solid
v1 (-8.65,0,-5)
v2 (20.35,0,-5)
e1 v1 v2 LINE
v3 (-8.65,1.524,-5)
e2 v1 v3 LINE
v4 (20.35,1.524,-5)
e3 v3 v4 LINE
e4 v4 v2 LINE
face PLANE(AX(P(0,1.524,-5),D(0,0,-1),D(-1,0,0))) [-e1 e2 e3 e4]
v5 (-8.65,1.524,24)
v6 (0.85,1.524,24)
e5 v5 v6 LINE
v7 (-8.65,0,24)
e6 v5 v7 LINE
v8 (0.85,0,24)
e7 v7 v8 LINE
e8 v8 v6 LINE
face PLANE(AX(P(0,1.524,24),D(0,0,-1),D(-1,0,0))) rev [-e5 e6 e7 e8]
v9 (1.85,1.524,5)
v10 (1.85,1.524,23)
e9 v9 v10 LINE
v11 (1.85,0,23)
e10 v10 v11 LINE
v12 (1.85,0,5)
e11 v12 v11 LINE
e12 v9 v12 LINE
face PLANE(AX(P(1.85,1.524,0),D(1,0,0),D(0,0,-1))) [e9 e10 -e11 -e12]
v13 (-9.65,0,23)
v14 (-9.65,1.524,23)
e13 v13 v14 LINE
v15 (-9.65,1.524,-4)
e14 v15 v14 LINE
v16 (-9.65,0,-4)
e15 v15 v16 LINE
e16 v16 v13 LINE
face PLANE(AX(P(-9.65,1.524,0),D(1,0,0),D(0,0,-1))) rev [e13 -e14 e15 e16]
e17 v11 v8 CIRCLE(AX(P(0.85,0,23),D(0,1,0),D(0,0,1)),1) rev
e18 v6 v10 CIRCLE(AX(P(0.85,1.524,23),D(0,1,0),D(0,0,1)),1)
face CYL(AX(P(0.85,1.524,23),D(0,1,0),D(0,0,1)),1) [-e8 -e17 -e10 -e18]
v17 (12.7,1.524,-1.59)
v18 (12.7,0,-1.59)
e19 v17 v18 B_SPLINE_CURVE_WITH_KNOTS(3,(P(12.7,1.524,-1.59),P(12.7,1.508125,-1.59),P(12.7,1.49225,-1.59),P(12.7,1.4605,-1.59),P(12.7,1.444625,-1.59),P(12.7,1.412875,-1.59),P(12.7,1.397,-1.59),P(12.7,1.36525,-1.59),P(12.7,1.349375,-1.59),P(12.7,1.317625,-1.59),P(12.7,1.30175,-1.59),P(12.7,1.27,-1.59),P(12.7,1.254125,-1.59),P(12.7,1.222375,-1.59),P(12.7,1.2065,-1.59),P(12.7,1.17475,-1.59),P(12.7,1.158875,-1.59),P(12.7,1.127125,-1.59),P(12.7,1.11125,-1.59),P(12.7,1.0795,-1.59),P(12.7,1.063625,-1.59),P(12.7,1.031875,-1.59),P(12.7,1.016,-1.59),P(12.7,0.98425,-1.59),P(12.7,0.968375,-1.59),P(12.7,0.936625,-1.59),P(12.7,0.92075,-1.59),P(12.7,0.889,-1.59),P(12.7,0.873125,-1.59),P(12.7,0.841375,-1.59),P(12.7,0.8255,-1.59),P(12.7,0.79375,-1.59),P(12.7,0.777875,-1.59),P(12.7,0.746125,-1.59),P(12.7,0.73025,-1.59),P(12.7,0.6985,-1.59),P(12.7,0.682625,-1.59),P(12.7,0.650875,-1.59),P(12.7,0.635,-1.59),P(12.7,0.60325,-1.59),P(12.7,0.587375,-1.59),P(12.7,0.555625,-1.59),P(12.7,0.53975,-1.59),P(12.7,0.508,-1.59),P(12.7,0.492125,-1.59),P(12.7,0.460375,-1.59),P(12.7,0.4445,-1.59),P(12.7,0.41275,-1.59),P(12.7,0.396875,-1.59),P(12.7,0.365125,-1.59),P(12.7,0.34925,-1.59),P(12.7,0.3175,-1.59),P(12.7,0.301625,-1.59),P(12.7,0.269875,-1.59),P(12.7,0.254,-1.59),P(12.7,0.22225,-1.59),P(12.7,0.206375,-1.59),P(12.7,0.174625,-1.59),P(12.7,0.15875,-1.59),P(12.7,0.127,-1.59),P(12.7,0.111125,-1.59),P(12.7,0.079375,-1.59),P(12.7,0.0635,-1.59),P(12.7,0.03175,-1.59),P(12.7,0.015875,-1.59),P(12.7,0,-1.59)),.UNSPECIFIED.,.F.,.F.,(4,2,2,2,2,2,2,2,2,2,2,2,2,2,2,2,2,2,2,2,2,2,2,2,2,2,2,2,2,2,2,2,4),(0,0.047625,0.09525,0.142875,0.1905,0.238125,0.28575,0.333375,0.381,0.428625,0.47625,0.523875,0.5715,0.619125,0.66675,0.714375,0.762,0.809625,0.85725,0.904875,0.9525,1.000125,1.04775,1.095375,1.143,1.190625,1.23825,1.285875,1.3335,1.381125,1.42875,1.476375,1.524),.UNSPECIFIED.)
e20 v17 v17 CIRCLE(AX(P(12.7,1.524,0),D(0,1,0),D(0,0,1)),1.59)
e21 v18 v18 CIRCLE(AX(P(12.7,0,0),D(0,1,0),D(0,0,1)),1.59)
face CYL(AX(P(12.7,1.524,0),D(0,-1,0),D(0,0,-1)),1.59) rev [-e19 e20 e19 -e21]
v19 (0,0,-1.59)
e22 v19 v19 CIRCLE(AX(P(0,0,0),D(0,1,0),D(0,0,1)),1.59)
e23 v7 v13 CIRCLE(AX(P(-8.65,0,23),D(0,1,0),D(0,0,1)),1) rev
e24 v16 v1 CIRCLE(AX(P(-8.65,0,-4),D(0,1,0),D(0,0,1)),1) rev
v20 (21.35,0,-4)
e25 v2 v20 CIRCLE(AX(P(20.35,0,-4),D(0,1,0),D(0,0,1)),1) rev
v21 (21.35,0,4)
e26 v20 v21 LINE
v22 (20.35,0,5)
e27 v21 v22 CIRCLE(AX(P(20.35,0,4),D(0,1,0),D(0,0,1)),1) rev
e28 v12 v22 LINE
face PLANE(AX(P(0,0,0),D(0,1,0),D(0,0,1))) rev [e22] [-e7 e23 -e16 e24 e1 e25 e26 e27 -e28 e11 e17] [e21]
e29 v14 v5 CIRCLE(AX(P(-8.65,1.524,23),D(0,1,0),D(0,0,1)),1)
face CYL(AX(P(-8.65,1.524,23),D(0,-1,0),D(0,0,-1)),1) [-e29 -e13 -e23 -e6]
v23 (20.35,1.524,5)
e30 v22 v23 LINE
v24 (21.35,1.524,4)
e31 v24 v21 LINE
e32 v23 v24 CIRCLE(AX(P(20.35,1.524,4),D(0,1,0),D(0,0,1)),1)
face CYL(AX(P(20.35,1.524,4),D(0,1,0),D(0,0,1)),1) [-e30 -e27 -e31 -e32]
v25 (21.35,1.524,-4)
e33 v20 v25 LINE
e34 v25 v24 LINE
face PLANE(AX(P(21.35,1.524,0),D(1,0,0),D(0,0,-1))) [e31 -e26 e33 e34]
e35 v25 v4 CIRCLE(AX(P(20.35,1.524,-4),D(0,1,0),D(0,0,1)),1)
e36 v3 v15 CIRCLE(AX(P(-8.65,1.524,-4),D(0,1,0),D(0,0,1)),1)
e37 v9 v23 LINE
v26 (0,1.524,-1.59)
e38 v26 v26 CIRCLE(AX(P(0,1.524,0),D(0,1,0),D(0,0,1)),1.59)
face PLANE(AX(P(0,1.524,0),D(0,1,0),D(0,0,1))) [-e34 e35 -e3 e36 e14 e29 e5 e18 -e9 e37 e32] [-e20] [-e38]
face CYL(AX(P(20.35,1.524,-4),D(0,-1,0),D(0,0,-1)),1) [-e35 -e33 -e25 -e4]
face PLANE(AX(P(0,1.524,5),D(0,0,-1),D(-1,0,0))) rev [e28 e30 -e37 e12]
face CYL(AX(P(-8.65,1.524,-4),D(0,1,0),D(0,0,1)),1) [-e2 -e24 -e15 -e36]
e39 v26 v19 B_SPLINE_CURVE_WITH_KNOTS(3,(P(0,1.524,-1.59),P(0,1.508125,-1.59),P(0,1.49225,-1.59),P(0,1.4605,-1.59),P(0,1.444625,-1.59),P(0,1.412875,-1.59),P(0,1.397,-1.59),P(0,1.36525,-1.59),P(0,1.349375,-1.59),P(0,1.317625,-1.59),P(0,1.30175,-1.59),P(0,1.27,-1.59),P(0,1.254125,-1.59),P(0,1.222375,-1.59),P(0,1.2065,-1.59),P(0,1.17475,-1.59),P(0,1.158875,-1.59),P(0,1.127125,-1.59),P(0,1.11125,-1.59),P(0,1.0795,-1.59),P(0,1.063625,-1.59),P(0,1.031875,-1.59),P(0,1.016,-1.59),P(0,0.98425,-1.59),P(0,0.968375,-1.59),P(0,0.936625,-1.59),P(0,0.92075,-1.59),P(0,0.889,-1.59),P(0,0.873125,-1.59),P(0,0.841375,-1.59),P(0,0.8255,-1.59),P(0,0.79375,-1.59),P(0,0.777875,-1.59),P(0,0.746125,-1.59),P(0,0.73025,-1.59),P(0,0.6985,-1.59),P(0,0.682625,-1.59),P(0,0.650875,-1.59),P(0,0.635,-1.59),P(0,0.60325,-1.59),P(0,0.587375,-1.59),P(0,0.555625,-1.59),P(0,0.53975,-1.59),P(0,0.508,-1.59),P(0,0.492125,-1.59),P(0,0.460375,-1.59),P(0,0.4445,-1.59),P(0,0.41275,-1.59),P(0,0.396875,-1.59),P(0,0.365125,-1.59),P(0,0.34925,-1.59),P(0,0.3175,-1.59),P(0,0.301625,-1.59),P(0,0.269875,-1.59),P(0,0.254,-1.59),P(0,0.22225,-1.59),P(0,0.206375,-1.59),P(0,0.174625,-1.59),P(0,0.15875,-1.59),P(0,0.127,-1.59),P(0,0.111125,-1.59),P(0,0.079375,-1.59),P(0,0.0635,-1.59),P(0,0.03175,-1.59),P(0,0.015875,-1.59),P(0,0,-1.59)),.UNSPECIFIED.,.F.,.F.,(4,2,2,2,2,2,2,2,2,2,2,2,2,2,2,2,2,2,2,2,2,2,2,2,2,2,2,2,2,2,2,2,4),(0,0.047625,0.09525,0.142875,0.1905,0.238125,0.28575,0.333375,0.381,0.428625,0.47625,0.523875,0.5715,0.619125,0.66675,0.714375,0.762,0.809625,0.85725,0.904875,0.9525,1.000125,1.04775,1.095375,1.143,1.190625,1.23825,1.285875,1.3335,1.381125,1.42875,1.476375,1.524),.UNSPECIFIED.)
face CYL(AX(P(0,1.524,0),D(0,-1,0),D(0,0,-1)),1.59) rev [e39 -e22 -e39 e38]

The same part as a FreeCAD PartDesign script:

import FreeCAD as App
import Part
import Sketcher

V = App.Vector


def edges_at(feature, points):
    """Names of the edges that pass closest to the given points."""
    edges = feature.Shape.Edges
    near = lambda p: min(range(len(edges)), key=lambda i: edges[i].distToShape(Part.Vertex(*p))[0])
    return sorted({f"Edge{near(p) + 1}" for p in points})

doc = App.newDocument("Part")
body = doc.addObject("PartDesign::Body", "Body")

# Sketch on XZ plane
sketch1 = body.newObject("Sketcher::SketchObject", "Sketch")
sketch1.AttachmentSupport = (doc.getObject("XZ_Plane"), [""])
sketch1.MapMode = "FlatFace"
sketch1.addGeometry([
    Part.LineSegment(V(-9.7, -5, 0), V(-9.7, 24, 0)),  # 0
    Part.LineSegment(V(-9.7, 24, 0), V(1.9, 24, 0)),  # 1
    Part.LineSegment(V(1.9, 24, 0), V(1.9, 5, 0)),  # 2
    Part.LineSegment(V(1.9, 5, 0), V(21.4, 5, 0)),  # 3
    Part.LineSegment(V(21.4, 5, 0), V(21.4, -5, 0)),  # 4
    Part.LineSegment(V(21.4, -5, 0), V(-9.7, -5, 0)),  # 5
    Part.Circle(V(0, 0, 0), V(0, 0, 1), 1.6),  # 6
    Part.Circle(V(12.7, 0, 0), V(0, 0, 1), 1.6),  # 7
], False)
sketch1.addConstraint([
    Sketcher.Constraint("Coincident", 0, 2, 1, 1),
    Sketcher.Constraint("Coincident", 1, 2, 2, 1),
    Sketcher.Constraint("Coincident", 2, 2, 3, 1),
    Sketcher.Constraint("Coincident", 3, 2, 4, 1),
    Sketcher.Constraint("Coincident", 4, 2, 5, 1),
    Sketcher.Constraint("Coincident", 5, 2, 0, 1),
    Sketcher.Constraint("Vertical", 0),
    Sketcher.Constraint("Horizontal", 1),
    Sketcher.Constraint("Vertical", 2),
    Sketcher.Constraint("Horizontal", 3),
    Sketcher.Constraint("Vertical", 4),
    Sketcher.Constraint("Horizontal", 5),
    Sketcher.Constraint("Coincident", 6, 3, -1, 1),
    Sketcher.Constraint("Equal", 6, 7),
    Sketcher.Constraint("PointOnObject", 7, 3, -1),
    Sketcher.Constraint("Diameter", 6, 3.18),
    Sketcher.Constraint("DistanceX", 5, 2, 5, 1, 31.0),
    Sketcher.Constraint("DistanceY", 0, 1, 0, 2, 29.0),
    Sketcher.Constraint("DistanceY", 2, 2, 2, 1, 19.0),
    Sketcher.Constraint("DistanceX", 1, 1, 1, 2, 11.5),
    Sketcher.Constraint("DistanceY", -1, 1, 0, 2, 24.0),
    Sketcher.Constraint("DistanceX", -1, 1, 7, 3, 12.7),
    Sketcher.Constraint("DistanceX", 0, 2, -1, 1, 9.65),
])
pad1 = body.newObject("PartDesign::Pad", "Pad")
pad1.Profile = sketch1
pad1.Length = 1.524
pad1.Reversed = True
doc.recompute()

fillet = body.newObject("PartDesign::Fillet", "Fillet")
fillet.Base = (pad1, edges_at(pad1, [
    (-9.65, 0.762, -5),
    (21.35, 0.762, -5),
    (21.35, 0.762, 5),
    (1.85, 0.762, 24),
    (-9.65, 0.762, 24),
]))
fillet.Radius = 1

doc.recompute()
